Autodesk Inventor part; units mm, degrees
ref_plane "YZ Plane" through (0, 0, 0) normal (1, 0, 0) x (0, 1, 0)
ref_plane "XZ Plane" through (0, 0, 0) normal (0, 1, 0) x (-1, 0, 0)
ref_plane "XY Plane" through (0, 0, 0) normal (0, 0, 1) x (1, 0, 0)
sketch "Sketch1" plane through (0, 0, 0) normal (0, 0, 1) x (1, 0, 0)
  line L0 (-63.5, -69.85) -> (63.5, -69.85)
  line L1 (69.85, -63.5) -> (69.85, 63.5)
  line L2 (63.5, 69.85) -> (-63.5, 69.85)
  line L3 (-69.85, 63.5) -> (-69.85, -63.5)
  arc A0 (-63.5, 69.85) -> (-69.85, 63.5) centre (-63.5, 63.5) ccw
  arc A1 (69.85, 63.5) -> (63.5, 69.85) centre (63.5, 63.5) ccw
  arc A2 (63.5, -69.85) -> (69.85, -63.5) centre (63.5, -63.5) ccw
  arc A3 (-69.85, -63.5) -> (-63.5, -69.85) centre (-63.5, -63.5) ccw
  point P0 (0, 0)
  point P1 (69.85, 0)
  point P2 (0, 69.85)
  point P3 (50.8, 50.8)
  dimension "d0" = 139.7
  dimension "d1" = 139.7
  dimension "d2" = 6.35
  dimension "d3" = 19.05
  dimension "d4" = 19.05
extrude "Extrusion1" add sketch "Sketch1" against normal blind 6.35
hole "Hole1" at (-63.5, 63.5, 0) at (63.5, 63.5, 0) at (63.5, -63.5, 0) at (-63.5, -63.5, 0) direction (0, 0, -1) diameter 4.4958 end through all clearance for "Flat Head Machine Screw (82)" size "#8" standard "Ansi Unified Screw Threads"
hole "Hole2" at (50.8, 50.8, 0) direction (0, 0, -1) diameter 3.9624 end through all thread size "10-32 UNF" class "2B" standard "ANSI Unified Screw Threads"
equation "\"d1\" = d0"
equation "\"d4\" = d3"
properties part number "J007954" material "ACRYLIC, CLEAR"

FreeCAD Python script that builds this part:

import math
import FreeCAD as App
import Part
import Sketcher
from FreeCAD import Vector
Q = App.Units.Quantity

doc = App.newDocument("Part")
body = doc.addObject("PartDesign::Body", "Body")

# Sketch on XY plane
sketch1 = body.newObject("Sketcher::SketchObject", "Sketch")
sketch1.AttachmentSupport = (doc.getObject("XY_Plane"), [""])
sketch1.MapMode = "FlatFace"
sketch1.addGeometry(Part.ArcOfCircle(Part.Circle(Vector(-63.5, -63.5, 0), Vector(0, 0, 1), 6.35), math.radians(180), math.radians(270)), False)
sketch1.addGeometry(Part.LineSegment(Vector(-63.5, -69.85, 0), Vector(63.5, -69.85, 0)), False)
sketch1.addGeometry(Part.ArcOfCircle(Part.Circle(Vector(63.5, -63.5, 0), Vector(0, 0, 1), 6.35), math.radians(-90), math.radians(0)), False)
sketch1.addGeometry(Part.LineSegment(Vector(69.85, -63.5, 0), Vector(69.85, 63.5, 0)), False)
sketch1.addGeometry(Part.ArcOfCircle(Part.Circle(Vector(63.5, 63.5, 0), Vector(0, 0, 1), 6.35), math.radians(0), math.radians(90)), False)
sketch1.addGeometry(Part.LineSegment(Vector(63.5, 69.85, 0), Vector(-63.5, 69.85, 0)), False)
sketch1.addGeometry(Part.ArcOfCircle(Part.Circle(Vector(-63.5, 63.5, 0), Vector(0, 0, 1), 6.35), math.radians(90), math.radians(180)), False)
sketch1.addGeometry(Part.LineSegment(Vector(-69.85, 63.5, 0), Vector(-69.85, -63.5, 0)), False)
sketch1.addConstraint(Sketcher.Constraint("Tangent", 0, 2, 1, 1))
sketch1.addConstraint(Sketcher.Constraint("Tangent", 1, 2, 2, 1))
sketch1.addConstraint(Sketcher.Constraint("Tangent", 2, 2, 3, 1))
sketch1.addConstraint(Sketcher.Constraint("Tangent", 3, 2, 4, 1))
sketch1.addConstraint(Sketcher.Constraint("Tangent", 4, 2, 5, 1))
sketch1.addConstraint(Sketcher.Constraint("Tangent", 5, 2, 6, 1))
sketch1.addConstraint(Sketcher.Constraint("Tangent", 6, 2, 7, 1))
sketch1.addConstraint(Sketcher.Constraint("Tangent", 7, 2, 0, 1))
sketch1.addConstraint(Sketcher.Constraint("Horizontal", 1))
sketch1.addConstraint(Sketcher.Constraint("Vertical", 3))
sketch1.addConstraint(Sketcher.Constraint("Horizontal", 5))
sketch1.addConstraint(Sketcher.Constraint("Vertical", 7))
sketch1.addConstraint(Sketcher.Constraint("Equal", 0, 2))
sketch1.addConstraint(Sketcher.Constraint("Equal", 2, 4))
sketch1.addConstraint(Sketcher.Constraint("Equal", 4, 6))
sketch1.addConstraint(Sketcher.Constraint("Symmetric", 0, 3, 4, 3, -1, 1))
sketch1.addConstraint(Sketcher.Constraint("Equal", 5, 3))
sketch1.addConstraint(Sketcher.Constraint("Radius", 0, Q("0.25 in")))
sketch1.addConstraint(Sketcher.Constraint("DistanceX", 1, 1, 1, 2, Q("5 in")))
pad1 = body.newObject("PartDesign::Pad", "Pad")
pad1.Profile = sketch1
pad1.Length = Q("0.25 in")
pad1.Reversed = True

# Sketch on XY plane
sketch2 = body.newObject("Sketcher::SketchObject", "Sketch001")
sketch2.AttachmentSupport = (doc.getObject("XY_Plane"), [""])
sketch2.MapMode = "FlatFace"
sketch2.addGeometry(Part.Circle(Vector(-63.5, 63.5, 0), Vector(0, 0, 1), 2.2479), False)
sketch2.addGeometry(Part.Circle(Vector(63.5, 63.5, 0), Vector(0, 0, 1), 2.2479), False)
sketch2.addGeometry(Part.Circle(Vector(63.5, -63.5, 0), Vector(0, 0, 1), 2.2479), False)
sketch2.addGeometry(Part.Circle(Vector(-63.5, -63.5, 0), Vector(0, 0, 1), 2.2479), False)
sketch2.addConstraint(Sketcher.Constraint("Equal", 0, 1))
sketch2.addConstraint(Sketcher.Constraint("Equal", 1, 2))
sketch2.addConstraint(Sketcher.Constraint("Equal", 2, 3))
sketch2.addConstraint(Sketcher.Constraint("Symmetric", 0, 3, 2, 3, -1, 1))
sketch2.addConstraint(Sketcher.Constraint("Symmetric", 1, 3, 3, 3, -1, 1))
sketch2.addConstraint(Sketcher.Constraint("Symmetric", 0, 3, 1, 3, -2))
sketch2.addConstraint(Sketcher.Constraint("Diameter", 0, Q("0.177 in")))
sketch2.addConstraint(Sketcher.Constraint("DistanceX", 0, 3, 1, 3, Q("5 in")))
sketch2.addConstraint(Sketcher.Constraint("DistanceY", 2, 3, 1, 3, Q("5 in")))
doc.recompute()
hole = body.newObject("PartDesign::Hole", "Hole")
hole.Profile = sketch2
hole.ThreadType = "None"
hole.Diameter = Q("0.177 in")
hole.DepthType = "ThroughAll"

# Sketch on XY plane
sketch3 = body.newObject("Sketcher::SketchObject", "Sketch002")
sketch3.AttachmentSupport = (doc.getObject("XY_Plane"), [""])
sketch3.MapMode = "FlatFace"
sketch3.addGeometry(Part.Circle(Vector(50.8, 50.8, 0), Vector(0, 0, 1), 1.9812), False)
sketch3.addConstraint(Sketcher.Constraint("Diameter", 0, Q("0.156 in")))
sketch3.addConstraint(Sketcher.Constraint("DistanceX", -1, 1, 0, 3, Q("2 in")))
sketch3.addConstraint(Sketcher.Constraint("DistanceY", -1, 1, 0, 3, Q("2 in")))
doc.recompute()
hole2 = body.newObject("PartDesign::Hole", "Hole001")
hole2.Profile = sketch3
hole2.ThreadType = "None"
hole2.Diameter = Q("0.156 in")
hole2.DepthType = "ThroughAll"

doc.recompute()
